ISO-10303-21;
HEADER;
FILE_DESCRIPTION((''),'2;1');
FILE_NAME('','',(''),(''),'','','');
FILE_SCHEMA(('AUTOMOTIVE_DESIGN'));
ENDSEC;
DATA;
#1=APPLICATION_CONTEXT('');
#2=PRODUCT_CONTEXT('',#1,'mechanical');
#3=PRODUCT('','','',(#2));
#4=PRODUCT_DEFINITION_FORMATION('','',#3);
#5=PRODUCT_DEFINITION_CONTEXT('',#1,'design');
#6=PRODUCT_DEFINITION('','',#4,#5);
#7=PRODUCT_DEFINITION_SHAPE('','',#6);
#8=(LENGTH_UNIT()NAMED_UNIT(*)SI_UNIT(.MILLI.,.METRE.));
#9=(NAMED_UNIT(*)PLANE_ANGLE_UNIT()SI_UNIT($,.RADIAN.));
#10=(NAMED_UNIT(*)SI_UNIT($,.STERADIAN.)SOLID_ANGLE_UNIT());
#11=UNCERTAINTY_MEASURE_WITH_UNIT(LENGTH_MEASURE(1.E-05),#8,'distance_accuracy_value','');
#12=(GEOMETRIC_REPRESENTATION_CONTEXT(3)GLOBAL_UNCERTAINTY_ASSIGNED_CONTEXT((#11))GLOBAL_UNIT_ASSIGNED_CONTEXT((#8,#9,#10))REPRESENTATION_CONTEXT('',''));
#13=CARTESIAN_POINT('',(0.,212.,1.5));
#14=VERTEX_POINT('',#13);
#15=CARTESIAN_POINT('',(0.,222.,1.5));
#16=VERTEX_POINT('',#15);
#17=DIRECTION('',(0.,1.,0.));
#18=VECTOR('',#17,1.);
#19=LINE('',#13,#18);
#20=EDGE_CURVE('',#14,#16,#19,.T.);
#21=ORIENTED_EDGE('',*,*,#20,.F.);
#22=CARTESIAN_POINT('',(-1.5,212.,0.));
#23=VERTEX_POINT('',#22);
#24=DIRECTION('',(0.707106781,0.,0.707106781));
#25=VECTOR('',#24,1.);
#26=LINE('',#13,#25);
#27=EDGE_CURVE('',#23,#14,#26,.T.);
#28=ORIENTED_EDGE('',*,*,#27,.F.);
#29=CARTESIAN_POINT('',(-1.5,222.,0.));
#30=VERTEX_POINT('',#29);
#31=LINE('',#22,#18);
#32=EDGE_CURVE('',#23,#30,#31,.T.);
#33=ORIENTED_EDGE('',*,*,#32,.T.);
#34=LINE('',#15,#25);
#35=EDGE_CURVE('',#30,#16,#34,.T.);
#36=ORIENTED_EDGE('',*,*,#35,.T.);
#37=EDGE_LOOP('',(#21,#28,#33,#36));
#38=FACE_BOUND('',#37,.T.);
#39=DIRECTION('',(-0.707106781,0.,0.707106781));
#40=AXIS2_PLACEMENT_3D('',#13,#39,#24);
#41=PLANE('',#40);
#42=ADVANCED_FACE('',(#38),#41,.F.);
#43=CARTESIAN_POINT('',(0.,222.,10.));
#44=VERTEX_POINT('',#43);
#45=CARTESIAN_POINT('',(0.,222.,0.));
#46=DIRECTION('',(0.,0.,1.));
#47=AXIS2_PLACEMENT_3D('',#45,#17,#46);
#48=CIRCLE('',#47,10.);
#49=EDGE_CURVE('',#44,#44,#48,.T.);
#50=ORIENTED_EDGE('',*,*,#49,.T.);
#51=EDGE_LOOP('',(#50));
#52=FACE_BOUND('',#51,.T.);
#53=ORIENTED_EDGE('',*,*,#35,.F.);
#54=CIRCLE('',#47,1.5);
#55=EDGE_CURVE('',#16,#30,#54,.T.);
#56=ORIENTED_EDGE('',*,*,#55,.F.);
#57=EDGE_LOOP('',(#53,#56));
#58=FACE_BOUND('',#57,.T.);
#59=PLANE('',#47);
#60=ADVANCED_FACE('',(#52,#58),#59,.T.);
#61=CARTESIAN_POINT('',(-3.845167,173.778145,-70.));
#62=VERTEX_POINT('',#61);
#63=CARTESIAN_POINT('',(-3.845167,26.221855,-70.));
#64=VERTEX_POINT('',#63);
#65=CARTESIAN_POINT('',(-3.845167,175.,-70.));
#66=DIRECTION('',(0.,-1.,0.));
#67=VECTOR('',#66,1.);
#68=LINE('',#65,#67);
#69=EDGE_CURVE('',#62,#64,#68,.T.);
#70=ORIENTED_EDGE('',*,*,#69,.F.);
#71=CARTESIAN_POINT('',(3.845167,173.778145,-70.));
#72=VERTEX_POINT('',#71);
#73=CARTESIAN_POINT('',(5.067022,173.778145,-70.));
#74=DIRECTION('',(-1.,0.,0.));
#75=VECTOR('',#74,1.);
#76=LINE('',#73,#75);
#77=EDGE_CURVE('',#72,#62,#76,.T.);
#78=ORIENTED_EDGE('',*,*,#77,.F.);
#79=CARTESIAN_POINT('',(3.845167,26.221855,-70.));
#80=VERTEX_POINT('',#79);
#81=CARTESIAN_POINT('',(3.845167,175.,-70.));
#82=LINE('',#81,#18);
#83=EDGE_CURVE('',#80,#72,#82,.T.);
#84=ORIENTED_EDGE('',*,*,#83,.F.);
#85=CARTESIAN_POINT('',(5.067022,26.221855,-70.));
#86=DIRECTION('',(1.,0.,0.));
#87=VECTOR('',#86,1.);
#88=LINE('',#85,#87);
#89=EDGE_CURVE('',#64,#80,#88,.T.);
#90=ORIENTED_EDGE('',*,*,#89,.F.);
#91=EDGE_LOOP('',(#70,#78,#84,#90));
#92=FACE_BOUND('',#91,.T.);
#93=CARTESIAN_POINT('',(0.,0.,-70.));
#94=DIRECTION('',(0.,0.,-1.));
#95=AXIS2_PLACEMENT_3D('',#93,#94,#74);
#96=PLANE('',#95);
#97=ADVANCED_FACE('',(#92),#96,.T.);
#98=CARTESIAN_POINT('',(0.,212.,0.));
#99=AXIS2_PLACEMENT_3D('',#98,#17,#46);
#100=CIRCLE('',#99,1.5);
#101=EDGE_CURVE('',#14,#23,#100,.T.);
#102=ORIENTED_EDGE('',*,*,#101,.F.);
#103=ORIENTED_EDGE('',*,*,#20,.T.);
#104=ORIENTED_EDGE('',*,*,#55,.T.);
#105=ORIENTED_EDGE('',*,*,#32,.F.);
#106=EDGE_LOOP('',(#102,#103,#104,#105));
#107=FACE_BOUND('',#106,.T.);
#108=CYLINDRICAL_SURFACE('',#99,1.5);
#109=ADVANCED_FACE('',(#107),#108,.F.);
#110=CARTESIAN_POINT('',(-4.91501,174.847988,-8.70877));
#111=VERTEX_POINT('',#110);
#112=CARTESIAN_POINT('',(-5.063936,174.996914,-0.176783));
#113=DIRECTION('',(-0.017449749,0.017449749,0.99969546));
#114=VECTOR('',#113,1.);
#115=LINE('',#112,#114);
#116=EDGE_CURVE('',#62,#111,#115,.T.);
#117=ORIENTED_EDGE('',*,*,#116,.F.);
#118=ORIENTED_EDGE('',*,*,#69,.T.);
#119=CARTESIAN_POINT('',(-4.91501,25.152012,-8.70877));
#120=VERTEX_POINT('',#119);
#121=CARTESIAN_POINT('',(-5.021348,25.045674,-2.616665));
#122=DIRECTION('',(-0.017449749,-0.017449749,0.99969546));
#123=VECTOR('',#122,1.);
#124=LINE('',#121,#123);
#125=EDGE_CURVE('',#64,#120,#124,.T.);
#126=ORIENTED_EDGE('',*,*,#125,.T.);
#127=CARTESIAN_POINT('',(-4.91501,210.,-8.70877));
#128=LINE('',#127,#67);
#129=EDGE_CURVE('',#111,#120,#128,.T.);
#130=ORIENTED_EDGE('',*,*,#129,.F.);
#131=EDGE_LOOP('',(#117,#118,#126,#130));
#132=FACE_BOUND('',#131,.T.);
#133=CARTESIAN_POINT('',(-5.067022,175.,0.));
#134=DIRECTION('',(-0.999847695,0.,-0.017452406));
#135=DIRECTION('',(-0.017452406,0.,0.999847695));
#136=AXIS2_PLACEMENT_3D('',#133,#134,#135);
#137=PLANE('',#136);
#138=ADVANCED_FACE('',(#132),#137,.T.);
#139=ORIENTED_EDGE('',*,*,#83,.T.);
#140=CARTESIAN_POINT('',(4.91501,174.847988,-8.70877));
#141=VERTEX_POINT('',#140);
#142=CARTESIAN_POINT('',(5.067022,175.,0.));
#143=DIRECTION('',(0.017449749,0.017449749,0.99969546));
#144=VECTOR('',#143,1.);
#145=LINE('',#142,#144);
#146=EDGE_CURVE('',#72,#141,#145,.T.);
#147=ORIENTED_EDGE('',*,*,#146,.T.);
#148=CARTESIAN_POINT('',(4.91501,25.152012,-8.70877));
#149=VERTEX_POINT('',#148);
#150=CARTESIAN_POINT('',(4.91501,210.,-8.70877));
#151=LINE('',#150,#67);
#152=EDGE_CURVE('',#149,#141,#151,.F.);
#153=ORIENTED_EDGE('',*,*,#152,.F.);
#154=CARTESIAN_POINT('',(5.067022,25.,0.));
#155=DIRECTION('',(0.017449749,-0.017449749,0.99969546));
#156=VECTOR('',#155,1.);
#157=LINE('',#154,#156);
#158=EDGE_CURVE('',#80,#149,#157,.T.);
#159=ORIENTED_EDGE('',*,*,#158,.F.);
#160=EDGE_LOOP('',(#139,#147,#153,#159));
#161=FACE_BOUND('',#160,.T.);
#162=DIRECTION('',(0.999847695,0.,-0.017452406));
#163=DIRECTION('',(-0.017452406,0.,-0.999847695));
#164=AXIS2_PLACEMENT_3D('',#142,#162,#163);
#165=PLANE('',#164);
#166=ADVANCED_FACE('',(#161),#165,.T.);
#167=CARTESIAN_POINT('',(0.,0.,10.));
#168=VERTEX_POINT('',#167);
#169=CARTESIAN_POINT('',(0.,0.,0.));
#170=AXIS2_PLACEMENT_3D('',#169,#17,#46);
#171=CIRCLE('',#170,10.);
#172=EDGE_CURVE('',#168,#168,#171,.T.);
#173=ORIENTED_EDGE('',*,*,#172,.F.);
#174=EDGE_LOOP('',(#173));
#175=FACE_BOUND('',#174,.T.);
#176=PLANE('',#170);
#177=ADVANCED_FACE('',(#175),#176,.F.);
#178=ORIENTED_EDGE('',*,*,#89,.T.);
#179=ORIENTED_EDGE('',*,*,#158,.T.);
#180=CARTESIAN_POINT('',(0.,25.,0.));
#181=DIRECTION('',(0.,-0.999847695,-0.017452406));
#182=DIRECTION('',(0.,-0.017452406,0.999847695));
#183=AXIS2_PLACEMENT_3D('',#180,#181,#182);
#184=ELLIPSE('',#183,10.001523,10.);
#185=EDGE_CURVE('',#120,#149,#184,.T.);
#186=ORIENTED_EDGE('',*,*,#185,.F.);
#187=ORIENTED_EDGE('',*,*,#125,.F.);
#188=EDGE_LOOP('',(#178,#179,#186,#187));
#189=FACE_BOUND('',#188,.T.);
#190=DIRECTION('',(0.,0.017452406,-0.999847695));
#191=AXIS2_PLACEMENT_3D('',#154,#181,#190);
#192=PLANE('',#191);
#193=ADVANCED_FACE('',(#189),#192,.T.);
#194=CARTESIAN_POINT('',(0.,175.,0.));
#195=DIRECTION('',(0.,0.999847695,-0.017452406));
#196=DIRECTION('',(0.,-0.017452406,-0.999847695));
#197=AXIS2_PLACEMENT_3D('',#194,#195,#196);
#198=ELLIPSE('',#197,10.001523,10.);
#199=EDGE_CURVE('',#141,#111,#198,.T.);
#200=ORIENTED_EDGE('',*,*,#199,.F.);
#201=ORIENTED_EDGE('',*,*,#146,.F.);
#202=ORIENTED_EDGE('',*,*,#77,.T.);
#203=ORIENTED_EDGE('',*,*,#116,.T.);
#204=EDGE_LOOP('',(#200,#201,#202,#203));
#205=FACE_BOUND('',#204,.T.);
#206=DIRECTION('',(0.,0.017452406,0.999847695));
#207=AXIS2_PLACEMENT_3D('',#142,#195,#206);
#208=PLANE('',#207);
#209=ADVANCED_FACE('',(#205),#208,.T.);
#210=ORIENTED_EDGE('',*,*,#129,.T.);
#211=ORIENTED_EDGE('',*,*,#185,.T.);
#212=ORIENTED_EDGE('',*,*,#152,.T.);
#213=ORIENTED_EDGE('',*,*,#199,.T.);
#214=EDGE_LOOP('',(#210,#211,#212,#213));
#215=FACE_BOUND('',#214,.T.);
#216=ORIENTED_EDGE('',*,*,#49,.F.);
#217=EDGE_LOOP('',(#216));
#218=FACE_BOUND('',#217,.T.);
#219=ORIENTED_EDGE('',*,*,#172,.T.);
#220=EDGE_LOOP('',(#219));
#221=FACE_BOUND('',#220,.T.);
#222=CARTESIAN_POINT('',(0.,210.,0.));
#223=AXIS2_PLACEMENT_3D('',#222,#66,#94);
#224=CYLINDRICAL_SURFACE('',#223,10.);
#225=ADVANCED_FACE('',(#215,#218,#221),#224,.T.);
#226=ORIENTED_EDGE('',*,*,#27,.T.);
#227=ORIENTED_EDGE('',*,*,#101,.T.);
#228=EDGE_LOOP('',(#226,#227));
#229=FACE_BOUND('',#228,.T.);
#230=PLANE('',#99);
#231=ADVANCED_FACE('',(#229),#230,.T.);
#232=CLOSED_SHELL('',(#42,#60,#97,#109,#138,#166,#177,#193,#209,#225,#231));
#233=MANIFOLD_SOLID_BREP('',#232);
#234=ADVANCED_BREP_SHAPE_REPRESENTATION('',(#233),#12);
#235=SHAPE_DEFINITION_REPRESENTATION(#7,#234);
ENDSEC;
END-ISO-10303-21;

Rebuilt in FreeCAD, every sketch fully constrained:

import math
import FreeCAD as App
import Part
import Sketcher
Q = App.Units.Quantity


def faces_at(feature, points):
    """Names of the faces that lie closest to the given points."""
    faces = feature.Shape.Faces
    near = lambda p: min(range(len(faces)), key=lambda i: faces[i].distToShape(Part.Vertex(*p))[0])
    return sorted({f"Face{near(p) + 1}" for p in points})


def add_polygon(sketch, points):
    """Adds a closed chain of lines whose ends are joined by coincident constraints."""
    first, n = sketch.GeometryCount, len(points)
    for a, b in zip(points, points[1:] + points[:1]):
        sketch.addGeometry(Part.LineSegment(App.Vector(*a, 0), App.Vector(*b, 0)), False)
    for i in range(n):
        sketch.addConstraint(Sketcher.Constraint("Coincident", first + i, 2, first + (i + 1) % n, 1))

doc = App.newDocument("Part")
body = doc.addObject("PartDesign::Body", "Body")

# Sketch on XZ plane
sketch1 = body.newObject("Sketcher::SketchObject", "Sketch")
sketch1.AttachmentSupport = (doc.getObject("XZ_Plane"), [""])
sketch1.MapMode = "FlatFace"
sketch1.addGeometry(Part.Circle(App.Vector(0, 0, 0), App.Vector(0, 0, 1), 10), False)
sketch1.addConstraint(Sketcher.Constraint("Coincident", 0, 3, -1, 1))
sketch1.addConstraint(Sketcher.Constraint("Diameter", 0, Q("20 mm")))
pad1 = body.newObject("PartDesign::Pad", "Pad")
pad1.Profile = sketch1
pad1.Length = 210
pad1.Reversed = True
body2 = doc.addObject("PartDesign::Body", "Body001")

# Sketch on XY plane
sketch2 = body2.newObject("Sketcher::SketchObject", "Sketch001")
sketch2.AttachmentSupport = (doc.getObject("XY_Plane001"), [""])
sketch2.MapMode = "FlatFace"
add_polygon(sketch2, [(-5, 175), (-5, 25), (5, 25), (5, 175)])  # lines 0-3
sketch2.addConstraint(Sketcher.Constraint("Vertical", 0))
sketch2.addConstraint(Sketcher.Constraint("Horizontal", 1))
sketch2.addConstraint(Sketcher.Constraint("Vertical", 2))
sketch2.addConstraint(Sketcher.Constraint("Horizontal", 3))
sketch2.addConstraint(Sketcher.Constraint("DistanceY", 0, 2, 0, 1, Q("150 mm")))
sketch2.addConstraint(Sketcher.Constraint("DistanceY", -1, 1, 0, 2, Q("25 mm")))
sketch2.addConstraint(Sketcher.Constraint("DistanceX", 1, 1, 1, 2, Q("10.134044 mm")))
sketch2.addConstraint(Sketcher.Constraint("DistanceX", 0, 2, -1, 1, Q("5.067022 mm")))
pad2 = body2.newObject("PartDesign::Pad", "Pad001")
pad2.Profile = sketch2
pad2.Length = 70
pad2.Reversed = True
doc.recompute()

draft = body2.newObject("PartDesign::Draft", "Draft")
draft.Base = (pad2, faces_at(pad2, [
    (0, 175, -35),
    (-5.067, 100, -35),
    (0, 25, -35),
    (5.067, 100, -35),
]))
draft.NeutralPlane = (doc.getObject("XY_Plane001"), [""])
draft.Angle = 1
draft.Reversed = True
doc.recompute()

boolean = body.newObject("PartDesign::Boolean", "Boolean")
boolean.Type = "Fuse"
boolean.addObjects([body2])

# Sketch on XZ plane
sketch3 = body.newObject("Sketcher::SketchObject", "Sketch002")
sketch3.AttachmentSupport = (doc.getObject("XZ_Plane"), [""])
sketch3.MapMode = "FlatFace"
sketch3.AttachmentOffset = App.Placement(App.Vector(0, 0, -210), App.Rotation())
sketch3.addGeometry(Part.Circle(App.Vector(0, 0, 0), App.Vector(0, 0, 1), 10), False)
sketch3.addConstraint(Sketcher.Constraint("Coincident", 0, 3, -1, 1))
sketch3.addConstraint(Sketcher.Constraint("Diameter", 0, Q("20 mm")))
pad3 = body.newObject("PartDesign::Pad", "Pad002")
pad3.Profile = sketch3
pad3.Length = 12
pad3.Reversed = True

# Sketch on XZ plane
sketch4 = body.newObject("Sketcher::SketchObject", "Sketch003")
sketch4.AttachmentSupport = (doc.getObject("XZ_Plane"), [""])
sketch4.MapMode = "FlatFace"
sketch4.AttachmentOffset = App.Placement(App.Vector(0, 0, -222), App.Rotation())
sketch4.addGeometry(Part.LineSegment(App.Vector(-1.5, 0, 0), App.Vector(0, 1.5, 0)), False)
sketch4.addGeometry(Part.ArcOfCircle(Part.Circle(App.Vector(0, 0, 0), App.Vector(0, 0, 1), 1.5), math.radians(180), math.radians(450)), False)
sketch4.addConstraint(Sketcher.Constraint("Coincident", 0, 1, 1, 1))
sketch4.addConstraint(Sketcher.Constraint("Coincident", 1, 2, 0, 2))
sketch4.addConstraint(Sketcher.Constraint("Coincident", 1, 3, -1, 1))
sketch4.addConstraint(Sketcher.Constraint("PointOnObject", 0, 1, -1))
sketch4.addConstraint(Sketcher.Constraint("PointOnObject", 1, 2, -2))
sketch4.addConstraint(Sketcher.Constraint("Radius", 1, Q("1.5 mm")))
pocket1 = body.newObject("PartDesign::Pocket", "Pocket")
pocket1.Profile = sketch4
pocket1.Length = 10
pocket1.Reversed = True

doc.recompute()
